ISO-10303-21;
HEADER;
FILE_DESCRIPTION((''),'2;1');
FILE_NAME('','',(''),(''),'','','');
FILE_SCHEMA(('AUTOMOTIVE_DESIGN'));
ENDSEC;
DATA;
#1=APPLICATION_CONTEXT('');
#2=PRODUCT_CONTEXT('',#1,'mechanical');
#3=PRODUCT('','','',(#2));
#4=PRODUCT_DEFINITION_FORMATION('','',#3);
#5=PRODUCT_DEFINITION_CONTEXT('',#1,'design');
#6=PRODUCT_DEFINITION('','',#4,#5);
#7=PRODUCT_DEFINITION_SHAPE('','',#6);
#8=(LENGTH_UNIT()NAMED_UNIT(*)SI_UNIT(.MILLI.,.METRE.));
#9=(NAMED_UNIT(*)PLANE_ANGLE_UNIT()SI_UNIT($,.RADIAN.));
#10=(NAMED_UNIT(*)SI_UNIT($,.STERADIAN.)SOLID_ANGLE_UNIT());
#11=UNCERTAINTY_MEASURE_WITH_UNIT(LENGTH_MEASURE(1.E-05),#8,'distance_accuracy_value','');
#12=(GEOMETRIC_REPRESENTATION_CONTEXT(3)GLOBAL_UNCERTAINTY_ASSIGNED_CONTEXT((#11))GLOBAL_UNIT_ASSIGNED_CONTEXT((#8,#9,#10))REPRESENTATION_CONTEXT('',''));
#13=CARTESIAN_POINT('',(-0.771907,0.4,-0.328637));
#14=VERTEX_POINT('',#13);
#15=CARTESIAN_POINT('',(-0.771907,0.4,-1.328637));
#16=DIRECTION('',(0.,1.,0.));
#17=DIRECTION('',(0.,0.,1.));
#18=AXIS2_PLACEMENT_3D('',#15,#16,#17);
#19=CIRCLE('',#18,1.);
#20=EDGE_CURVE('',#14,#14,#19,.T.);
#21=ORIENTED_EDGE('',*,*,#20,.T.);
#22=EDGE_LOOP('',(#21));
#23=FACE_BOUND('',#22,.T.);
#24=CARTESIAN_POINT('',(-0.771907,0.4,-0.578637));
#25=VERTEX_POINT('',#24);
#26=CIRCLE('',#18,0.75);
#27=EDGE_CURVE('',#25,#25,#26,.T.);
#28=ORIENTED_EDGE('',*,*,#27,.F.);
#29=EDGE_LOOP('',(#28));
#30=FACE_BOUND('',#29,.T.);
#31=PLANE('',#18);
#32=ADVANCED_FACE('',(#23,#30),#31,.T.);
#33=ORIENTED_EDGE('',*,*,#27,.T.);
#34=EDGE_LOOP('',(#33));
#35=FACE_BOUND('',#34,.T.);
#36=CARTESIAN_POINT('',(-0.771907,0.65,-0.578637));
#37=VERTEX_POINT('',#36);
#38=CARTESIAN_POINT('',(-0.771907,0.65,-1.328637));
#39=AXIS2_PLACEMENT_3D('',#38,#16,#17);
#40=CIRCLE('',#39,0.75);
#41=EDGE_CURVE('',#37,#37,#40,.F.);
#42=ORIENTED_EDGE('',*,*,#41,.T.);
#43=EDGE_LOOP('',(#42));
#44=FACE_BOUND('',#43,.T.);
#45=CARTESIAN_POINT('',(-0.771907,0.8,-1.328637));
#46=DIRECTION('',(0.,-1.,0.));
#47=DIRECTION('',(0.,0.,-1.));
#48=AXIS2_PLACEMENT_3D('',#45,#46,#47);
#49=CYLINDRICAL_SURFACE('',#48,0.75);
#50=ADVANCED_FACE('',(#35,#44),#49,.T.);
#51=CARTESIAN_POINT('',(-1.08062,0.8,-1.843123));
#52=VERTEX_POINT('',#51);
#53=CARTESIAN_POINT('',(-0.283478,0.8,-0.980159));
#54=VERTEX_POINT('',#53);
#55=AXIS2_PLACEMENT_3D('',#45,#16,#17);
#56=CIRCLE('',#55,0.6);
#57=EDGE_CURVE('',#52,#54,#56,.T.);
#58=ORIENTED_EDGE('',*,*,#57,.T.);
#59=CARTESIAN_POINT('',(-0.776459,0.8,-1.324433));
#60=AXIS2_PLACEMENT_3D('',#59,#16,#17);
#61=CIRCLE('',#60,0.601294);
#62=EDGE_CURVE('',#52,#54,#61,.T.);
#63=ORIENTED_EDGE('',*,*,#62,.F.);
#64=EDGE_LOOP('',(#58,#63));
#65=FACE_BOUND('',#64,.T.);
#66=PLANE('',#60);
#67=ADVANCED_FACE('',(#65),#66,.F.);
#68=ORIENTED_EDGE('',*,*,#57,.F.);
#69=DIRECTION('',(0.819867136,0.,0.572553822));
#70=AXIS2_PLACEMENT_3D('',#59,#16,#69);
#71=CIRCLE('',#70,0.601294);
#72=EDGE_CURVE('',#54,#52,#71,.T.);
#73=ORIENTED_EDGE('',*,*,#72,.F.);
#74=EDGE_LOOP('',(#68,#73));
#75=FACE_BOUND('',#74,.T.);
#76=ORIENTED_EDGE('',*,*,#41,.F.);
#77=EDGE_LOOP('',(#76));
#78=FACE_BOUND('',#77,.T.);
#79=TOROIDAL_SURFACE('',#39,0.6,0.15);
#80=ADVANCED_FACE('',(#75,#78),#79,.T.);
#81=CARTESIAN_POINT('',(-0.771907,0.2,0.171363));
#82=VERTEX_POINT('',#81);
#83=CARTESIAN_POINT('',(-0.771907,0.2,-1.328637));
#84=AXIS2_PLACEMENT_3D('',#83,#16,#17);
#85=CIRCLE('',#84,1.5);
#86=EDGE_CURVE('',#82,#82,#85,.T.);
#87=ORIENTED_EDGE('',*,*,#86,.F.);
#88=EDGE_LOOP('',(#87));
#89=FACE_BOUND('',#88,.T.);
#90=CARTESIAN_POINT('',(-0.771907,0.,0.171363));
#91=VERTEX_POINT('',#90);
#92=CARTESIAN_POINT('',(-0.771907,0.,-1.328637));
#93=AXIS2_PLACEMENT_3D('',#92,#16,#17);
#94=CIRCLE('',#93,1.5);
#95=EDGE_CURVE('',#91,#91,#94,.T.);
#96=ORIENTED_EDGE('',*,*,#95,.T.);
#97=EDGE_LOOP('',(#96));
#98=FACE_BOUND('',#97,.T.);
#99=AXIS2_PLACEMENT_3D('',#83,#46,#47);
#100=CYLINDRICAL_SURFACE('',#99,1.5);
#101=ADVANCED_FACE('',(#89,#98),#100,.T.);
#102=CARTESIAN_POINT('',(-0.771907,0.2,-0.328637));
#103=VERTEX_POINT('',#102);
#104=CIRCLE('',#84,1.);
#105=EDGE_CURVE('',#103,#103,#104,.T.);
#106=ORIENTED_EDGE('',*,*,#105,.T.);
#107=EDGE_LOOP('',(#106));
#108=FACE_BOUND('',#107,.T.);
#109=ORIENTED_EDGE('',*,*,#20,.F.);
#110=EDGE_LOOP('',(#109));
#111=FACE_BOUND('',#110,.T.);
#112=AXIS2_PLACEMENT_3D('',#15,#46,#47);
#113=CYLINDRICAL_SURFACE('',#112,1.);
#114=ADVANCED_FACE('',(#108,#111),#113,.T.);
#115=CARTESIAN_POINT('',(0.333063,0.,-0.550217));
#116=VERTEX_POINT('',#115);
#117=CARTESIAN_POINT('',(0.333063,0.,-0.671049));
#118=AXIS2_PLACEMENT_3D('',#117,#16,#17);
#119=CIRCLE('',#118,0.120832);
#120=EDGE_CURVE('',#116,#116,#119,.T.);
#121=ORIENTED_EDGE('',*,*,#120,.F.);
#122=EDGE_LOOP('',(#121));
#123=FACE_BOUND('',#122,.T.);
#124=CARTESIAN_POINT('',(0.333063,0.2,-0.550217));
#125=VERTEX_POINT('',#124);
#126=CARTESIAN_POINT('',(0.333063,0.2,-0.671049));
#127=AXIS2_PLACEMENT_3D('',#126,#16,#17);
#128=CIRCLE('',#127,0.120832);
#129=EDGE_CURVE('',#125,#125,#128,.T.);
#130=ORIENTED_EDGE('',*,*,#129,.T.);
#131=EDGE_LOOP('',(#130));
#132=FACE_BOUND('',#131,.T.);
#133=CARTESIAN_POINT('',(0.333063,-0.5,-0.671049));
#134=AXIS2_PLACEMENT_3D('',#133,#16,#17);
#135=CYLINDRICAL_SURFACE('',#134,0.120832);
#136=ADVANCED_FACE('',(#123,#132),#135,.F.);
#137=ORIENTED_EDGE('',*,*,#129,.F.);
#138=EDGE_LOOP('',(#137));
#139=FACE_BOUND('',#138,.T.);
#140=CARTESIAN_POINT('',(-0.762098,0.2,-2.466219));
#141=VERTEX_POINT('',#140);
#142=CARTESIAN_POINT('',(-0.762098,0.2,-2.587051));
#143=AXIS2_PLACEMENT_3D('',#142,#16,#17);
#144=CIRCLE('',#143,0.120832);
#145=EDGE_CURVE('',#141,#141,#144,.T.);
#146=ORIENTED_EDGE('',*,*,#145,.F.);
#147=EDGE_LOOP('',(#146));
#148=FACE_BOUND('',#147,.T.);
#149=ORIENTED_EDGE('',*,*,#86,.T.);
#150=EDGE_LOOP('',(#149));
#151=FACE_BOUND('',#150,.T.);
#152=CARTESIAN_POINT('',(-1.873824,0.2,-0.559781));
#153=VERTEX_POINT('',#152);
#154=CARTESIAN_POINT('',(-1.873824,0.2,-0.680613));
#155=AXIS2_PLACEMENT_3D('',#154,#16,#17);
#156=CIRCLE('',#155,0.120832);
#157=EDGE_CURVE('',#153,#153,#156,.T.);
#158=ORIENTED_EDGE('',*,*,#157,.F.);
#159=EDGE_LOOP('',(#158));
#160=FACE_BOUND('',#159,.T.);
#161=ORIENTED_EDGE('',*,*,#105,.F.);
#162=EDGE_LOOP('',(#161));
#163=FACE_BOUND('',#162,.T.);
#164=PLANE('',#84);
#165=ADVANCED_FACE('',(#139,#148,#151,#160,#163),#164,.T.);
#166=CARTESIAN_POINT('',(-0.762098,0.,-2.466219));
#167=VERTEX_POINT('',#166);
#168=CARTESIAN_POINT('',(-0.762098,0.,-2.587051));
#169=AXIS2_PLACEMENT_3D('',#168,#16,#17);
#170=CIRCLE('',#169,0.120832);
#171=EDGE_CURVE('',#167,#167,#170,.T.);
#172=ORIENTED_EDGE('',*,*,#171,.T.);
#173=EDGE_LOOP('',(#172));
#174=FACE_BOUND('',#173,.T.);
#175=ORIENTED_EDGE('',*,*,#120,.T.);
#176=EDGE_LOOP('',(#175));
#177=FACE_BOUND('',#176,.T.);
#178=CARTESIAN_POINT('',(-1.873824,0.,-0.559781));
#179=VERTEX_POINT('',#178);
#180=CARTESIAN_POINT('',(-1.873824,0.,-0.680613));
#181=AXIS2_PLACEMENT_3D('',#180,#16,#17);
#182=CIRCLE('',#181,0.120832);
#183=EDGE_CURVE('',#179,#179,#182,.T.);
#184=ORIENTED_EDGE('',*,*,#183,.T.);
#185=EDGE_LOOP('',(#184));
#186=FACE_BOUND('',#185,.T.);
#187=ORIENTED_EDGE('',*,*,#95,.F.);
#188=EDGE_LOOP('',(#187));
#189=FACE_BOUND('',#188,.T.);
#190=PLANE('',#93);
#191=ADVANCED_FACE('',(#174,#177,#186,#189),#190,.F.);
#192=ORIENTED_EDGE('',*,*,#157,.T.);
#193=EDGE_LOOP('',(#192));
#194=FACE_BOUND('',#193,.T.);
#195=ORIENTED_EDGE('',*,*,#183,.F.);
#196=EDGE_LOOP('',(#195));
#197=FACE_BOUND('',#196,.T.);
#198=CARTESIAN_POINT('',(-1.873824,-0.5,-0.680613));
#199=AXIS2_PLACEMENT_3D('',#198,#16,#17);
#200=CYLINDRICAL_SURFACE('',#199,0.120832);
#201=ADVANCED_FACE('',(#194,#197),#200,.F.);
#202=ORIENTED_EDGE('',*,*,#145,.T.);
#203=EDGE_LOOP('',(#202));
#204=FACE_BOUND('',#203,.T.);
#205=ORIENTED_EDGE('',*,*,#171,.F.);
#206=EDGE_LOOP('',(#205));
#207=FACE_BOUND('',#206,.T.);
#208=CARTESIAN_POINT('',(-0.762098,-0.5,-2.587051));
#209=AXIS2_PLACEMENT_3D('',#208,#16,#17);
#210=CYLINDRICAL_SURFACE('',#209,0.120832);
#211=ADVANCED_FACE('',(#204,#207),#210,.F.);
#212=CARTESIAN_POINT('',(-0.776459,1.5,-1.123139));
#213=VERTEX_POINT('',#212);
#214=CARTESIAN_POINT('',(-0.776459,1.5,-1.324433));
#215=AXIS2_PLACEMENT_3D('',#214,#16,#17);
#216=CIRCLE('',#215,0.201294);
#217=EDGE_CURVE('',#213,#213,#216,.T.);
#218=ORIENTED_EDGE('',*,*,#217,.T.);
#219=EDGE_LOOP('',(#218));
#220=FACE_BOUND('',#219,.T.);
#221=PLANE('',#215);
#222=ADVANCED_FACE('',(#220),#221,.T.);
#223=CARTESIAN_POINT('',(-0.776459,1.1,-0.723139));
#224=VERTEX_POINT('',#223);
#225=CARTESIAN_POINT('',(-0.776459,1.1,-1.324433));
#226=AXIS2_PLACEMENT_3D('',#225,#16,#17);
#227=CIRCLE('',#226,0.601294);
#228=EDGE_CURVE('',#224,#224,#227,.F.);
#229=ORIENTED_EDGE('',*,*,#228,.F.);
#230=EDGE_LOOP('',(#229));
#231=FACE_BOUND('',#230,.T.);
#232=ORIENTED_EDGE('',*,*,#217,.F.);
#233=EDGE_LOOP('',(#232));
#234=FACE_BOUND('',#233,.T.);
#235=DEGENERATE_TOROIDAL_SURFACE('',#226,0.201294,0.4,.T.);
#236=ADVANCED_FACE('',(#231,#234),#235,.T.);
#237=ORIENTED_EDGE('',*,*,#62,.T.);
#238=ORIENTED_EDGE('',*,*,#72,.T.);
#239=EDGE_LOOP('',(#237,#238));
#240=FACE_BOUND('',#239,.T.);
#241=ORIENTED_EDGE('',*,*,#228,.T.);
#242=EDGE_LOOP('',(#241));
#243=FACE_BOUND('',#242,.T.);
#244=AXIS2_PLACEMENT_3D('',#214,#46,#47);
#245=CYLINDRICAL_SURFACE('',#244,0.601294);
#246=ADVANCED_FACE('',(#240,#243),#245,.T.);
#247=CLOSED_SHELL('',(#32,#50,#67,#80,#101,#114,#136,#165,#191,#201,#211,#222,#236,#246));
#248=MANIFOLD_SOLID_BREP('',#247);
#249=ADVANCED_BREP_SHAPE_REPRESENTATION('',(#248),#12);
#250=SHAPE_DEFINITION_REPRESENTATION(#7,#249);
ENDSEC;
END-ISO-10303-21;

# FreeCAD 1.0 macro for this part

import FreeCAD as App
import Part
import Sketcher
from FreeCAD import Vector
Q = App.Units.Quantity


def edges_at(feature, points):
    """Names of the edges that pass closest to the given points."""
    edges = feature.Shape.Edges
    near = lambda p: min(range(len(edges)), key=lambda i: edges[i].distToShape(Part.Vertex(*p))[0])
    return sorted({f"Edge{near(p) + 1}" for p in points})

doc = App.newDocument("Part")
body = doc.addObject("PartDesign::Body", "Body")

sketch1 = body.newObject("Sketcher::SketchObject", "Sketch")
sketch1.AttachmentSupport = (doc.getObject("XZ_Plane"), [""])
sketch1.MapMode = "FlatFace"
sketch1.addGeometry(Part.Circle(Vector(-0.8, -1.3, 0), Vector(0, 0, 1), 1.5), False)
sketch1.addConstraint([
    Sketcher.Constraint("Diameter", 0, Q("3 mm")),
    Sketcher.Constraint("DistanceX", 0, 3, -1, 1, Q("0.771907 mm")),
    Sketcher.Constraint("DistanceY", 0, 3, -1, 1, Q("1.328637 mm")),
])
pad1 = body.newObject("PartDesign::Pad", "Pad")
pad1.Profile = sketch1
pad1.Length = 0.2
pad1.Reversed = True

sketch2 = body.newObject("Sketcher::SketchObject", "Sketch001")
sketch2.AttachmentSupport = (doc.getObject("XZ_Plane"), [""])
sketch2.MapMode = "FlatFace"
sketch2.AttachmentOffset = App.Placement(Vector(0, 0, -0.2), App.Rotation())
sketch2.addGeometry(Part.Circle(Vector(-0.8, -1.3, 0), Vector(0, 0, 1), 1), False)
sketch2.addConstraint([
    Sketcher.Constraint("Diameter", 0, Q("2 mm")),
    Sketcher.Constraint("DistanceX", 0, 3, -1, 1, Q("0.771907 mm")),
    Sketcher.Constraint("DistanceY", 0, 3, -1, 1, Q("1.328637 mm")),
])
pad2 = body.newObject("PartDesign::Pad", "Pad001")
pad2.Profile = sketch2
pad2.Length = 0.2
pad2.Reversed = True

sketch3 = body.newObject("Sketcher::SketchObject", "Sketch002")
sketch3.AttachmentSupport = (doc.getObject("XZ_Plane"), [""])
sketch3.MapMode = "FlatFace"
sketch3.AttachmentOffset = App.Placement(Vector(0, 0, -0.4), App.Rotation())
sketch3.addGeometry(Part.Circle(Vector(-0.8, -1.3, 0), Vector(0, 0, 1), 0.8), False)
sketch3.addConstraint([
    Sketcher.Constraint("Diameter", 0, Q("1.5 mm")),
    Sketcher.Constraint("DistanceX", 0, 3, -1, 1, Q("0.771907 mm")),
    Sketcher.Constraint("DistanceY", 0, 3, -1, 1, Q("1.328637 mm")),
])
pad3 = body.newObject("PartDesign::Pad", "Pad002")
pad3.Profile = sketch3
pad3.Length = 0.4
pad3.Reversed = True
doc.recompute()

fillet = body.newObject("PartDesign::Fillet", "Fillet")
fillet.Base = (pad3, edges_at(pad3, [(-0.772, 0.8, -2.079)]))
fillet.Radius = 0.15

sketch4 = body.newObject("Sketcher::SketchObject", "Sketch003")
sketch4.AttachmentSupport = (doc.getObject("XZ_Plane"), [""])
sketch4.MapMode = "FlatFace"
sketch4.AttachmentOffset = App.Placement(Vector(0, 0, -0.8), App.Rotation())
sketch4.addGeometry(Part.Circle(Vector(-0.8, -1.3, 0), Vector(0, 0, 1), 0.6), False)
sketch4.addConstraint([
    Sketcher.Constraint("Diameter", 0, Q("1.202588 mm")),
    Sketcher.Constraint("DistanceX", 0, 3, -1, 1, Q("0.776459 mm")),
    Sketcher.Constraint("DistanceY", 0, 3, -1, 1, Q("1.324433 mm")),
])
pad4 = body.newObject("PartDesign::Pad", "Pad003")
pad4.Profile = sketch4
pad4.Length = 0.7
pad4.Reversed = True
doc.recompute()

fillet2 = body.newObject("PartDesign::Fillet", "Fillet001")
fillet2.Base = (pad4, edges_at(pad4, [(-0.472, 1.5, -0.806)]))
fillet2.Radius = 0.4

sketch5 = body.newObject("Sketcher::SketchObject", "Sketch004")
sketch5.AttachmentSupport = (doc.getObject("XZ_Plane"), [""])
sketch5.MapMode = "FlatFace"
sketch5.AttachmentOffset = App.Placement(Vector(0, 0, -0.2), App.Rotation())
sketch5.addGeometry([
    Part.Circle(Vector(-0.76, -2.59, 0), Vector(0, 0, 1), 0.12),
    Part.Circle(Vector(0.33, -0.67, 0), Vector(0, 0, 1), 0.12),
    Part.Circle(Vector(-1.87, -0.68, 0), Vector(0, 0, 1), 0.12),
], False)
sketch5.addConstraint([
    Sketcher.Constraint("Equal", 0, 1),
    Sketcher.Constraint("Equal", 1, 2),
    Sketcher.Constraint("Diameter", 0, Q("0.241664 mm")),
    Sketcher.Constraint("DistanceY", 0, 3, -1, 1, Q("2.587051 mm")),
    Sketcher.Constraint("DistanceY", 1, 3, -1, 1, Q("0.671049 mm")),
    Sketcher.Constraint("DistanceX", 0, 3, 1, 3, Q("1.09516 mm")),
    Sketcher.Constraint("DistanceX", 0, 3, -1, 1, Q("0.762098 mm")),
    Sketcher.Constraint("DistanceX", 2, 3, -1, 1, Q("1.873824 mm")),
    Sketcher.Constraint("DistanceY", 2, 3, -1, 1, Q("0.680613 mm")),
])
pocket1 = body.newObject("PartDesign::Pocket", "Pocket")
pocket1.Profile = sketch5
pocket1.Length = 0.7
pocket1.Reversed = True

doc.recompute()
